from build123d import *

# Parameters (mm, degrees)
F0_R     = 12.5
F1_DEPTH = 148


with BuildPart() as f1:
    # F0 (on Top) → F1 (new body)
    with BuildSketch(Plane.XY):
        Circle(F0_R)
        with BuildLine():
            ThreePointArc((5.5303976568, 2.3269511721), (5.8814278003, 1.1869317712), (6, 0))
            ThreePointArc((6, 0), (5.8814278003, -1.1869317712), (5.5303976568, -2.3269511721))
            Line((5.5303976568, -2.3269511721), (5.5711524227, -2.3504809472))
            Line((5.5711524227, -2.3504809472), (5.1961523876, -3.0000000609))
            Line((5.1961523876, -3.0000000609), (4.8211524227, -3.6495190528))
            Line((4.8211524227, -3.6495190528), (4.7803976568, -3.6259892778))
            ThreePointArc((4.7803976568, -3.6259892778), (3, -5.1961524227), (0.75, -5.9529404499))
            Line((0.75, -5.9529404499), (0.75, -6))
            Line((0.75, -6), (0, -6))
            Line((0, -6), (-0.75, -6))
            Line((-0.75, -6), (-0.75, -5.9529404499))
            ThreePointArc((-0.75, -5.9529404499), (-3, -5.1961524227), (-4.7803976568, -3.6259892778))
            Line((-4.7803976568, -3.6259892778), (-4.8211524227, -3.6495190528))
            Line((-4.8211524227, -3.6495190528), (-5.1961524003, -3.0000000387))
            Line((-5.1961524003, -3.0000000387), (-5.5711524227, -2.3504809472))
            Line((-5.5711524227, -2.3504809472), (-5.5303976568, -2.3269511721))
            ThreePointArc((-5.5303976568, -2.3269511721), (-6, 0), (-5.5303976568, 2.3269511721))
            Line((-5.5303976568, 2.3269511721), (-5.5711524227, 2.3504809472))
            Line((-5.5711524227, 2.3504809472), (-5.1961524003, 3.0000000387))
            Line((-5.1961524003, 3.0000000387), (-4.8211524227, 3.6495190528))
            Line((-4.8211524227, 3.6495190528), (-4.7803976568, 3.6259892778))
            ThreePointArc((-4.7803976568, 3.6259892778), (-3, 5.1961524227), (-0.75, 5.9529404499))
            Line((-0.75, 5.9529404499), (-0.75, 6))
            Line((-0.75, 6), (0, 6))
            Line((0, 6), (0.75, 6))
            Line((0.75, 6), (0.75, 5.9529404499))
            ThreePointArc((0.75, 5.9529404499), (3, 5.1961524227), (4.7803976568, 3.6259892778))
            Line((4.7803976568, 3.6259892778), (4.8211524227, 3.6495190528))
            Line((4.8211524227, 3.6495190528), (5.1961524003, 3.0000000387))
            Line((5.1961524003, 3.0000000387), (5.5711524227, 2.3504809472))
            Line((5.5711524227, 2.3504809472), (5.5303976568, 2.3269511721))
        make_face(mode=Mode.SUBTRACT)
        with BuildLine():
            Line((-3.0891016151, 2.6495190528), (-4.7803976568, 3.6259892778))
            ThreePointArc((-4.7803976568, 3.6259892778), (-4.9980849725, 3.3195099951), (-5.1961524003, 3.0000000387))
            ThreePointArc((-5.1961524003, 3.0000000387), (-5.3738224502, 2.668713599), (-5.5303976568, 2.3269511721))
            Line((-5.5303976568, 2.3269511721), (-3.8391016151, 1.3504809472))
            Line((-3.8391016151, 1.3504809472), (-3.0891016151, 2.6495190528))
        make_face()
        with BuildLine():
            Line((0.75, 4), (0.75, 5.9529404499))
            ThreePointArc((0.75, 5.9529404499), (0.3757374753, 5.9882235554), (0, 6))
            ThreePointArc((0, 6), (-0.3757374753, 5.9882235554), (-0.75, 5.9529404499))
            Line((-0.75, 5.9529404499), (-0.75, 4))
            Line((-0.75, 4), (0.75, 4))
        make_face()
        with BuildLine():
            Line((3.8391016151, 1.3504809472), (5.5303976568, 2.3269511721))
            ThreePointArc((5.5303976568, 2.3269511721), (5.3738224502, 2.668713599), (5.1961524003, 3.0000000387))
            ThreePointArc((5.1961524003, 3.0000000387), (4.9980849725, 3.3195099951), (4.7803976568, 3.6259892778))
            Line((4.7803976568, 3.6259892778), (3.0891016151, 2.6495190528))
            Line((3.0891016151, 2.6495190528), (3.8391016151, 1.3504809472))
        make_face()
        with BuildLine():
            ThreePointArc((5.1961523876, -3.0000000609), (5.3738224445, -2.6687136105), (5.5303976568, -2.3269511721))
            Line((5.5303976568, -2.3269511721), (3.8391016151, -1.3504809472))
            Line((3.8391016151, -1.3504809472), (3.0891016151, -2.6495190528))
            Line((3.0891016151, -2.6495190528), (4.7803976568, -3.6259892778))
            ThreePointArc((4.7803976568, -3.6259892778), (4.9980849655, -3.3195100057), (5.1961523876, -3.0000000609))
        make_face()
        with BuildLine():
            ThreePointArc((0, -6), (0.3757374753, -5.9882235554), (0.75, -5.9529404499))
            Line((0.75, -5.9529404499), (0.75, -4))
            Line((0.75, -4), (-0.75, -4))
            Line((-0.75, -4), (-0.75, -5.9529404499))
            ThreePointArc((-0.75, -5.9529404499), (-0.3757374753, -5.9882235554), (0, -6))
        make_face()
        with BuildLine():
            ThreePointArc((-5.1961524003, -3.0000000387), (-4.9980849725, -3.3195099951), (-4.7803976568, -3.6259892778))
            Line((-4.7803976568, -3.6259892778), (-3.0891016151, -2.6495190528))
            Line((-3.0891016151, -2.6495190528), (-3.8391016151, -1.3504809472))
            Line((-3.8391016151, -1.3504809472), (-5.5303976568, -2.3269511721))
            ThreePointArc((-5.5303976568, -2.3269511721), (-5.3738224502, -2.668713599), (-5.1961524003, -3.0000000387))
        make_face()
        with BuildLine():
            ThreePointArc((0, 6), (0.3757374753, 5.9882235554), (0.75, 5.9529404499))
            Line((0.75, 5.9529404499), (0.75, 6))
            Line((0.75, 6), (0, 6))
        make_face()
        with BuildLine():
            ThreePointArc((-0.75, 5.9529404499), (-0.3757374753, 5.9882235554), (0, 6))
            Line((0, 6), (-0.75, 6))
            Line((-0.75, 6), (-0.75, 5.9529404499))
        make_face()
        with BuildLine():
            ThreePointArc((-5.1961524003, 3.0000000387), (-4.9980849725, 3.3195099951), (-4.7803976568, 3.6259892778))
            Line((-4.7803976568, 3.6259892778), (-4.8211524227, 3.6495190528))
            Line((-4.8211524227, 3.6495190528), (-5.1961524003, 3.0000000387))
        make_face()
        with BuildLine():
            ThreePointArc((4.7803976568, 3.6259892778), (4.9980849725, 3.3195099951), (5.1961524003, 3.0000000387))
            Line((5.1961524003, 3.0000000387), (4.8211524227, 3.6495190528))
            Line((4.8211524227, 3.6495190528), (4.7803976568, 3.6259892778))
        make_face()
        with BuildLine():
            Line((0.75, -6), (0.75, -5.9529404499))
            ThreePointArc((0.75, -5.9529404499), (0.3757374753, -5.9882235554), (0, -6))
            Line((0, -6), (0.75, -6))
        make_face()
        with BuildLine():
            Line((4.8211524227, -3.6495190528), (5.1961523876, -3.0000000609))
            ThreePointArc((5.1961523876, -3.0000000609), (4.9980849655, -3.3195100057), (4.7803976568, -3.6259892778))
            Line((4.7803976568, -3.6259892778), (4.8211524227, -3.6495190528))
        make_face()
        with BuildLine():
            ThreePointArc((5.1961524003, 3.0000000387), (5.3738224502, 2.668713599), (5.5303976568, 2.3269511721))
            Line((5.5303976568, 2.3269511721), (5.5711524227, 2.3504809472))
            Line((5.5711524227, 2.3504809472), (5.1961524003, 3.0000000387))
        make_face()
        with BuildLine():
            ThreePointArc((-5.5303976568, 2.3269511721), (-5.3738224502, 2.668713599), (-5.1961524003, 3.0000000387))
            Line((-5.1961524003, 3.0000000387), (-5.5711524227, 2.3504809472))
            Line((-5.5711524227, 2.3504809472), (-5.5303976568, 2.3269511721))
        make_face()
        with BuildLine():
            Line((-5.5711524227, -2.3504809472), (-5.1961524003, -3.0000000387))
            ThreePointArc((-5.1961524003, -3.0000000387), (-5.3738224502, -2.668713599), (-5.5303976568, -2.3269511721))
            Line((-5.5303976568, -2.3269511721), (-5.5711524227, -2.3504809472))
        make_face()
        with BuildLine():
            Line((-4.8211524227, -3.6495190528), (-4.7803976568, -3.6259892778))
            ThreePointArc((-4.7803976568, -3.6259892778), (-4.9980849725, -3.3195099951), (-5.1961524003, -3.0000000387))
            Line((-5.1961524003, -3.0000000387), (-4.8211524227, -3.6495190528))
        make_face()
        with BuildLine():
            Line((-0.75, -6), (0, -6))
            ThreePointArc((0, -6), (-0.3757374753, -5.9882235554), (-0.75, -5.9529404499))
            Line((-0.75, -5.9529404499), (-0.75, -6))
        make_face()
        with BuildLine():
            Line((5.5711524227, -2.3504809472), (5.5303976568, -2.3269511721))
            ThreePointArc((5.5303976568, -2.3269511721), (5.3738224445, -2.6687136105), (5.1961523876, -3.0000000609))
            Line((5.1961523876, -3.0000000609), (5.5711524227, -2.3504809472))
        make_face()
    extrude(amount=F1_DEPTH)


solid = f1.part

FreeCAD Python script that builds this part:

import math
import FreeCAD as App
import Part
import Sketcher

V = App.Vector
Q = App.Units.Quantity

doc = App.newDocument("Part")
params = doc.addObject("Spreadsheet::Sheet", "Params")
for row, (alias, value) in enumerate([
    ("sketch1_diameter", "25 mm"),
    ("sketch1_radius", "6 mm"),
    ("sketch1_width", "1.5 mm"),
    ("sketch1_length", "1.5 mm"),
    ("pad1_length", "148 mm"),
], start=1):
    params.set(f"A{row}", alias)
    params.set(f"B{row}", "=" + value)
    params.setAlias(f"B{row}", alias)

body = doc.addObject("PartDesign::Body", "Body")

# Sketch on XY plane
sketch1 = doc.addObject("Sketcher::SketchObject", "Sketch")
body.addObject(sketch1)
sketch1.AttachmentSupport = (doc.XY_Plane, [""])
sketch1.MapMode = "FlatFace"
sketch1.addGeometry(Part.Circle(V(0, 0, 0), V(0, 0, 1), 12.5), False)
sketch1.addGeometry(Part.ArcOfCircle(Part.Circle(V(0, 0, 0), V(0, 0, 1), 6), math.radians(-23), math.radians(0)), False)
sketch1.addGeometry(Part.LineSegment(V(5.5, -2.3, 0), V(3.8, -1.4, 0)), False)
sketch1.addGeometry(Part.LineSegment(V(3.8, -1.4, 0), V(3.1, -2.6, 0)), False)
sketch1.addGeometry(Part.LineSegment(V(3.1, -2.6, 0), V(4.8, -3.6, 0)), False)
sketch1.addGeometry(Part.ArcOfCircle(Part.Circle(V(0, 0, 0), V(0, 0, 1), 6), math.radians(-83), math.radians(-37)), False)
sketch1.addGeometry(Part.LineSegment(V(0.8, -6, 0), V(0.8, -4, 0)), False)
sketch1.addGeometry(Part.LineSegment(V(0.8, -4, 0), V(-0.8, -4, 0)), False)
sketch1.addGeometry(Part.LineSegment(V(-0.8, -4, 0), V(-0.8, -6, 0)), False)
sketch1.addGeometry(Part.ArcOfCircle(Part.Circle(V(0, 0, 0), V(0, 0, 1), 6), math.radians(-143), math.radians(-97)), False)
sketch1.addGeometry(Part.LineSegment(V(-4.8, -3.6, 0), V(-3.1, -2.6, 0)), False)
sketch1.addGeometry(Part.LineSegment(V(-3.1, -2.6, 0), V(-3.8, -1.4, 0)), False)
sketch1.addGeometry(Part.LineSegment(V(-3.8, -1.4, 0), V(-5.5, -2.3, 0)), False)
sketch1.addGeometry(Part.ArcOfCircle(Part.Circle(V(0, 0, 0), V(0, 0, 1), 6), math.radians(157), math.radians(203)), False)
sketch1.addGeometry(Part.LineSegment(V(-5.5, 2.3, 0), V(-3.8, 1.4, 0)), False)
sketch1.addGeometry(Part.LineSegment(V(-3.8, 1.4, 0), V(-3.1, 2.6, 0)), False)
sketch1.addGeometry(Part.LineSegment(V(-3.1, 2.6, 0), V(-4.8, 3.6, 0)), False)
sketch1.addGeometry(Part.ArcOfCircle(Part.Circle(V(0, 0, 0), V(0, 0, 1), 6), math.radians(97), math.radians(143)), False)
sketch1.addGeometry(Part.LineSegment(V(-0.8, 6, 0), V(-0.8, 4, 0)), False)
sketch1.addGeometry(Part.LineSegment(V(-0.8, 4, 0), V(0.8, 4, 0)), False)
sketch1.addGeometry(Part.LineSegment(V(0.8, 4, 0), V(0.8, 6, 0)), False)
sketch1.addGeometry(Part.ArcOfCircle(Part.Circle(V(0, 0, 0), V(0, 0, 1), 6), math.radians(37), math.radians(83)), False)
sketch1.addGeometry(Part.LineSegment(V(4.8, 3.6, 0), V(3.1, 2.6, 0)), False)
sketch1.addGeometry(Part.LineSegment(V(3.1, 2.6, 0), V(3.8, 1.4, 0)), False)
sketch1.addGeometry(Part.LineSegment(V(3.8, 1.4, 0), V(5.5, 2.3, 0)), False)
sketch1.addGeometry(Part.ArcOfCircle(Part.Circle(V(0, 0, 0), V(0, 0, 1), 6), math.radians(0), math.radians(23)), False)
sketch1.addConstraint(Sketcher.Constraint("Coincident", 1, 1, 2, 1))
sketch1.addConstraint(Sketcher.Constraint("Coincident", 2, 2, 3, 1))
sketch1.addConstraint(Sketcher.Constraint("Coincident", 3, 2, 4, 1))
sketch1.addConstraint(Sketcher.Constraint("Coincident", 4, 2, 5, 2))
sketch1.addConstraint(Sketcher.Constraint("Coincident", 5, 1, 6, 1))
sketch1.addConstraint(Sketcher.Constraint("Coincident", 6, 2, 7, 1))
sketch1.addConstraint(Sketcher.Constraint("Coincident", 7, 2, 8, 1))
sketch1.addConstraint(Sketcher.Constraint("Coincident", 8, 2, 9, 2))
sketch1.addConstraint(Sketcher.Constraint("Coincident", 9, 1, 10, 1))
sketch1.addConstraint(Sketcher.Constraint("Coincident", 10, 2, 11, 1))
sketch1.addConstraint(Sketcher.Constraint("Coincident", 11, 2, 12, 1))
sketch1.addConstraint(Sketcher.Constraint("Coincident", 12, 2, 13, 2))
sketch1.addConstraint(Sketcher.Constraint("Coincident", 13, 1, 14, 1))
sketch1.addConstraint(Sketcher.Constraint("Coincident", 14, 2, 15, 1))
sketch1.addConstraint(Sketcher.Constraint("Coincident", 15, 2, 16, 1))
sketch1.addConstraint(Sketcher.Constraint("Coincident", 16, 2, 17, 2))
sketch1.addConstraint(Sketcher.Constraint("Coincident", 17, 1, 18, 1))
sketch1.addConstraint(Sketcher.Constraint("Coincident", 18, 2, 19, 1))
sketch1.addConstraint(Sketcher.Constraint("Coincident", 19, 2, 20, 1))
sketch1.addConstraint(Sketcher.Constraint("Coincident", 20, 2, 21, 2))
sketch1.addConstraint(Sketcher.Constraint("Coincident", 21, 1, 22, 1))
sketch1.addConstraint(Sketcher.Constraint("Coincident", 22, 2, 23, 1))
sketch1.addConstraint(Sketcher.Constraint("Coincident", 23, 2, 24, 1))
sketch1.addConstraint(Sketcher.Constraint("Coincident", 24, 2, 25, 2))
sketch1.addConstraint(Sketcher.Constraint("Tangent", 25, 1, 1, 2))
sketch1.addConstraint(Sketcher.Constraint("Vertical", 6))
sketch1.addConstraint(Sketcher.Constraint("Horizontal", 7))
sketch1.addConstraint(Sketcher.Constraint("Vertical", 8))
sketch1.addConstraint(Sketcher.Constraint("Vertical", 18))
sketch1.addConstraint(Sketcher.Constraint("Horizontal", 19))
sketch1.addConstraint(Sketcher.Constraint("Vertical", 20))
sketch1.addConstraint(Sketcher.Constraint("Coincident", 0, 3, -1, 1))
sketch1.addConstraint(Sketcher.Constraint("Coincident", 1, 3, -1, 1))
sketch1.addConstraint(Sketcher.Constraint("Coincident", 5, 3, -1, 1))
sketch1.addConstraint(Sketcher.Constraint("Coincident", 9, 3, -1, 1))
sketch1.addConstraint(Sketcher.Constraint("Coincident", 13, 3, -1, 1))
sketch1.addConstraint(Sketcher.Constraint("Coincident", 17, 3, -1, 1))
sketch1.addConstraint(Sketcher.Constraint("Coincident", 21, 3, -1, 1))
sketch1.addConstraint(Sketcher.Constraint("Equal", 1, 5))
sketch1.addConstraint(Sketcher.Constraint("Equal", 5, 9))
sketch1.addConstraint(Sketcher.Constraint("Equal", 9, 13))
sketch1.addConstraint(Sketcher.Constraint("Equal", 13, 17))
sketch1.addConstraint(Sketcher.Constraint("Equal", 17, 21))
sketch1.addConstraint(Sketcher.Constraint("Equal", 21, 25))
sketch1.addConstraint(Sketcher.Constraint("Symmetric", 2, 2, 14, 2, -1, 1))
sketch1.addConstraint(Sketcher.Constraint("Symmetric", 3, 2, 15, 2, -1, 1))
sketch1.addConstraint(Sketcher.Constraint("Symmetric", 6, 2, 18, 2, -1, 1))
sketch1.addConstraint(Sketcher.Constraint("Symmetric", 10, 2, 22, 2, -1, 1))
sketch1.addConstraint(Sketcher.Constraint("Symmetric", 11, 2, 23, 2, -1, 1))
sketch1.addConstraint(Sketcher.Constraint("Symmetric", 3, 2, 10, 2, -2))
sketch1.addConstraint(Sketcher.Constraint("Symmetric", 2, 2, 11, 2, -2))
sketch1.addConstraint(Sketcher.Constraint("PointOnObject", 25, 1, -1))
sketch1.addConstraint(Sketcher.Constraint("Perpendicular", 2, 3))
sketch1.addConstraint(Sketcher.Constraint("Perpendicular", 3, 4))
sketch1.addConstraint(Sketcher.Constraint("Perpendicular", 10, 11))
sketch1.addConstraint(Sketcher.Constraint("Perpendicular", 11, 12))
sketch1.addConstraint(Sketcher.Constraint("Parallel", 4, 14))
sketch1.addConstraint(Sketcher.Constraint("Perpendicular", 15, 16))
sketch1.addConstraint(Sketcher.Constraint("Parallel", 12, 22))
sketch1.addConstraint(Sketcher.Constraint("Perpendicular", 23, 24))
sketch1.addConstraint(Sketcher.Constraint("Horizontal", 5, 1, 8, 2))
sketch1.addConstraint(Sketcher.Constraint("Horizontal", 17, 1, 20, 2))
sketch1.addConstraint(Sketcher.Constraint("Equal", 2, 4))
sketch1.addConstraint(Sketcher.Constraint("Diameter", 0, Q("25 mm")))
sketch1.addConstraint(Sketcher.Constraint("Radius", 1, Q("6 mm")))
sketch1.addConstraint(Sketcher.Constraint("Angle", 2, Q("150 deg")))
sketch1.addConstraint(Sketcher.Constraint("DistanceX", 7, 2, 7, 1, Q("1.5 mm")))
sketch1.addConstraint(Sketcher.Constraint("DistanceY", 6, 2, -1, 1, Q("4 mm")))
sketch1.addConstraint(Sketcher.Constraint("DistanceY", 11, 2, 15, 2, Q("4 mm")))
sketch1.addConstraint(Sketcher.Constraint("Distance", 3, Q("1.5 mm")))
sketch1.setExpression("Constraints[63]", "Params.sketch1_diameter")
sketch1.setExpression("Constraints[64]", "Params.sketch1_radius")
sketch1.setExpression("Constraints[66]", "Params.sketch1_width")
sketch1.setExpression("Constraints[69]", "Params.sketch1_length")
pad1 = doc.addObject("PartDesign::Pad", "Pad")
body.addObject(pad1)
pad1.Profile = sketch1
pad1.setExpression("Length", "Params.pad1_length")

doc.recompute()
